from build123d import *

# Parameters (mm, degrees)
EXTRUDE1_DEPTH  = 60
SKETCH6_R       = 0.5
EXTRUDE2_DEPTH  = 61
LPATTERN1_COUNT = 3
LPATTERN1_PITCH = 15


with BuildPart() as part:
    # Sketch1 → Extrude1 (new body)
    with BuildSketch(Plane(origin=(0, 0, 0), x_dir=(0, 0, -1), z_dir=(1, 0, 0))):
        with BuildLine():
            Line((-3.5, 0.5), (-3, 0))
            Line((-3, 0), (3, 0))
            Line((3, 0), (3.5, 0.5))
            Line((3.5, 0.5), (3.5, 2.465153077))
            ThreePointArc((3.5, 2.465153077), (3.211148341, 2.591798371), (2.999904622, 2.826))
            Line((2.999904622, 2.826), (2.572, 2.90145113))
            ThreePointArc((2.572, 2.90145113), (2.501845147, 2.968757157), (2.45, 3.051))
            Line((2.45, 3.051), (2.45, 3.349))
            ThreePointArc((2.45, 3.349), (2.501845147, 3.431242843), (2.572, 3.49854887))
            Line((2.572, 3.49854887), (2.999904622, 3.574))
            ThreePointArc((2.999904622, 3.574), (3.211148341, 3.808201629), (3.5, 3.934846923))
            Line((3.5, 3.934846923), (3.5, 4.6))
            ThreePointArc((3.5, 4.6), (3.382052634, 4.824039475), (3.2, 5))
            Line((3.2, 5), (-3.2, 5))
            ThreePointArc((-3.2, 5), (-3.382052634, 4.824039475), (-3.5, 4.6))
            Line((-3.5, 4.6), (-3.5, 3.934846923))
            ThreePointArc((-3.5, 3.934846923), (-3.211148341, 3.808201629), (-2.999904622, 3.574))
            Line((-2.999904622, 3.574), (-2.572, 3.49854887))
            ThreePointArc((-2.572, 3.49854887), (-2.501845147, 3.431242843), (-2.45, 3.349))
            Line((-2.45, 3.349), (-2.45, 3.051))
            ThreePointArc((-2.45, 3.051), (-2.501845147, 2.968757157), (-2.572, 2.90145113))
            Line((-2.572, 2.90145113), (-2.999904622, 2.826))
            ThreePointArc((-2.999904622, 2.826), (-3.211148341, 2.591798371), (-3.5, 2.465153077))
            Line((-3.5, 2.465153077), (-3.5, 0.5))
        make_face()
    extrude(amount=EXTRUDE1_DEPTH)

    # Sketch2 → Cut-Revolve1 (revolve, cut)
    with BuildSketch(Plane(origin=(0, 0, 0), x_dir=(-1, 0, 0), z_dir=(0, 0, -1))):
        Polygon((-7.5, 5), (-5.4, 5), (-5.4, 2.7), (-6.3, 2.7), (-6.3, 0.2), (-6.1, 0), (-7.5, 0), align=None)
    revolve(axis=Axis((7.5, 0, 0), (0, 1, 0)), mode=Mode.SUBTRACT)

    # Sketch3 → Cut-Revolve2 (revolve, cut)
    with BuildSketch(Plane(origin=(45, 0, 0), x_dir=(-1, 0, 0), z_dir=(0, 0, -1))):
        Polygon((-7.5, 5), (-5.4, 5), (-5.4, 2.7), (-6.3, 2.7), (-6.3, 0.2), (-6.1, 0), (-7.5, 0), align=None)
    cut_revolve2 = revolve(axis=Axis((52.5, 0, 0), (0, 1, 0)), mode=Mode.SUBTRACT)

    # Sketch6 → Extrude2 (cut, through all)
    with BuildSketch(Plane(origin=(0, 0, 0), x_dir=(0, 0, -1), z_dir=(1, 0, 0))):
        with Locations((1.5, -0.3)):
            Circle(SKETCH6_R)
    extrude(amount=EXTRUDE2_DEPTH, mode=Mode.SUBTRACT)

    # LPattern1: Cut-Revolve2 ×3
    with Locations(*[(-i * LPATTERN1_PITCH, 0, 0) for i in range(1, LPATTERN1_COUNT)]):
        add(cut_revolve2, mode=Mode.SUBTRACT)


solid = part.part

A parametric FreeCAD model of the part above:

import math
import FreeCAD as App
import Part
import Sketcher
Q = App.Units.Quantity


def add_polygon(sketch, points):
    """Adds a closed chain of lines whose ends are joined by coincident constraints."""
    first, n = sketch.GeometryCount, len(points)
    for a, b in zip(points, points[1:] + points[:1]):
        sketch.addGeometry(Part.LineSegment(App.Vector(*a, 0), App.Vector(*b, 0)), False)
    for i in range(n):
        sketch.addConstraint(Sketcher.Constraint("Coincident", first + i, 2, first + (i + 1) % n, 1))

doc = App.newDocument("Part")
body = doc.addObject("PartDesign::Body", "Body")

# Sketch on YZ plane
sketch1 = body.newObject("Sketcher::SketchObject", "Sketch")
sketch1.AttachmentSupport = (doc.getObject("YZ_Plane"), [""])
sketch1.MapMode = "FlatFace"
sketch1.addGeometry([
    Part.LineSegment(App.Vector(0.5, 3.5, 0), App.Vector(0, 3, 0)),  # 0
    Part.LineSegment(App.Vector(0, 3, 0), App.Vector(0, -3, 0)),  # 1
    Part.LineSegment(App.Vector(0, -3, 0), App.Vector(0.5, -3.5, 0)),  # 2
    Part.LineSegment(App.Vector(0.5, -3.5, 0), App.Vector(2.47, -3.5, 0)),  # 3
    Part.ArcOfCircle(Part.Circle(App.Vector(3.2, -3.65, 0), App.Vector(0, 0, 1), 0.75), math.radians(120), math.radians(168)),  # 4
    Part.LineSegment(App.Vector(2.83, -3, 0), App.Vector(2.9, -2.57, 0)),  # 5
    Part.ArcOfCircle(Part.Circle(App.Vector(3.22, -2.81, 0), App.Vector(0, 0, 1), 0.4), math.radians(115), math.radians(143)),  # 6
    Part.LineSegment(App.Vector(3.05, -2.45, 0), App.Vector(3.35, -2.45, 0)),  # 7
    Part.ArcOfCircle(Part.Circle(App.Vector(3.18, -2.81, 0), App.Vector(0, 0, 1), 0.4), math.radians(37), math.radians(65)),  # 8
    Part.LineSegment(App.Vector(3.5, -2.57, 0), App.Vector(3.57, -3, 0)),  # 9
    Part.ArcOfCircle(Part.Circle(App.Vector(3.2, -3.65, 0), App.Vector(0, 0, 1), 0.75), math.radians(12), math.radians(60)),  # 10
    Part.LineSegment(App.Vector(3.93, -3.5, 0), App.Vector(4.6, -3.5, 0)),  # 11
    Part.ArcOfCircle(Part.Circle(App.Vector(4.34, -2.74, 0), App.Vector(0, 0, 1), 0.8), math.radians(-71), math.radians(-35)),  # 12
    Part.LineSegment(App.Vector(5, -3.2, 0), App.Vector(5, 3.2, 0)),  # 13
    Part.ArcOfCircle(Part.Circle(App.Vector(4.34, 2.74, 0), App.Vector(0, 0, 1), 0.8), math.radians(35), math.radians(71)),  # 14
    Part.LineSegment(App.Vector(4.6, 3.5, 0), App.Vector(3.93, 3.5, 0)),  # 15
    Part.ArcOfCircle(Part.Circle(App.Vector(3.2, 3.65, 0), App.Vector(0, 0, 1), 0.75), math.radians(-60), math.radians(-12)),  # 16
    Part.LineSegment(App.Vector(3.57, 3, 0), App.Vector(3.5, 2.57, 0)),  # 17
    Part.ArcOfCircle(Part.Circle(App.Vector(3.18, 2.81, 0), App.Vector(0, 0, 1), 0.4), math.radians(-65), math.radians(-37)),  # 18
    Part.LineSegment(App.Vector(3.35, 2.45, 0), App.Vector(3.05, 2.45, 0)),  # 19
    Part.ArcOfCircle(Part.Circle(App.Vector(3.22, 2.81, 0), App.Vector(0, 0, 1), 0.4), math.radians(-143), math.radians(-115)),  # 20
    Part.LineSegment(App.Vector(2.9, 2.57, 0), App.Vector(2.83, 3, 0)),  # 21
    Part.ArcOfCircle(Part.Circle(App.Vector(3.2, 3.65, 0), App.Vector(0, 0, 1), 0.75), math.radians(-168), math.radians(-120)),  # 22
    Part.LineSegment(App.Vector(2.47, 3.5, 0), App.Vector(0.5, 3.5, 0)),  # 23
], False)
sketch1.addConstraint([
    Sketcher.Constraint("Coincident", 0, 2, 1, 1),
    Sketcher.Constraint("Coincident", 1, 2, 2, 1),
    Sketcher.Constraint("Coincident", 2, 2, 3, 1),
    Sketcher.Constraint("Coincident", 3, 2, 4, 2),
    Sketcher.Constraint("Coincident", 4, 1, 5, 1),
    Sketcher.Constraint("Coincident", 5, 2, 6, 2),
    Sketcher.Constraint("Coincident", 6, 1, 7, 1),
    Sketcher.Constraint("Coincident", 7, 2, 8, 2),
    Sketcher.Constraint("Coincident", 8, 1, 9, 1),
    Sketcher.Constraint("Coincident", 9, 2, 10, 2),
    Sketcher.Constraint("Coincident", 10, 1, 11, 1),
    Sketcher.Constraint("Coincident", 11, 2, 12, 1),
    Sketcher.Constraint("Coincident", 12, 2, 13, 1),
    Sketcher.Constraint("Coincident", 13, 2, 14, 1),
    Sketcher.Constraint("Coincident", 14, 2, 15, 1),
    Sketcher.Constraint("Coincident", 15, 2, 16, 2),
    Sketcher.Constraint("Coincident", 16, 1, 17, 1),
    Sketcher.Constraint("Coincident", 17, 2, 18, 2),
    Sketcher.Constraint("Coincident", 18, 1, 19, 1),
    Sketcher.Constraint("Coincident", 19, 2, 20, 2),
    Sketcher.Constraint("Coincident", 20, 1, 21, 1),
    Sketcher.Constraint("Coincident", 21, 2, 22, 2),
    Sketcher.Constraint("Coincident", 22, 1, 23, 1),
    Sketcher.Constraint("Coincident", 23, 2, 0, 1),
    Sketcher.Constraint("Vertical", 1),
    Sketcher.Constraint("Horizontal", 3),
    Sketcher.Constraint("Horizontal", 7),
    Sketcher.Constraint("Horizontal", 11),
    Sketcher.Constraint("Vertical", 13),
    Sketcher.Constraint("Horizontal", 15),
    Sketcher.Constraint("Horizontal", 19),
    Sketcher.Constraint("Horizontal", 23),
    Sketcher.Constraint("Coincident", 10, 3, 4, 3),
    Sketcher.Constraint("Coincident", 22, 3, 16, 3),
    Sketcher.Constraint("Equal", 6, 8),
    Sketcher.Constraint("Equal", 4, 10),
    Sketcher.Constraint("Equal", 12, 14),
    Sketcher.Constraint("Equal", 10, 16),
    Sketcher.Constraint("Equal", 8, 18),
    Sketcher.Constraint("Equal", 18, 20),
    Sketcher.Constraint("Equal", 16, 22),
    Sketcher.Constraint("Symmetric", 0, 2, 1, 2, -1, 1),
    Sketcher.Constraint("Symmetric", 12, 3, 14, 3, -1),
    Sketcher.Constraint("Symmetric", 4, 3, 16, 3, -1),
    Sketcher.Constraint("Symmetric", 8, 3, 18, 3, -1),
    Sketcher.Constraint("Symmetric", 6, 3, 20, 3, -1),
    Sketcher.Constraint("Symmetric", 2, 2, 23, 2, -1),
    Sketcher.Constraint("Perpendicular", 0, 2),
    Sketcher.Constraint("Parallel", 5, 17),
    Sketcher.Constraint("Parallel", 9, 21),
    Sketcher.Constraint("Horizontal", 6, 3, 8, 3),
    Sketcher.Constraint("Horizontal", 5, 2, 8, 1),
    Sketcher.Constraint("Horizontal", 4, 1, 9, 2),
    Sketcher.Constraint("Horizontal", 3, 2, 10, 1),
    Sketcher.Constraint("Horizontal", 17, 2, 20, 1),
    Sketcher.Constraint("Horizontal", 16, 1, 21, 2),
    Sketcher.Constraint("Horizontal", 15, 2, 22, 1),
    Sketcher.Constraint("Vertical", 9, 2, 16, 1),
    Sketcher.Constraint("Vertical", 7, 2, 18, 1),
    Sketcher.Constraint("Radius", 6, Q("0.4 mm")),
    Sketcher.Constraint("Radius", 12, Q("0.8 mm")),
    Sketcher.Constraint("DistanceY", 1, 2, 1, 1, Q("6 mm")),
    Sketcher.Constraint("Angle", 5, Q("80 deg")),
    Sketcher.Constraint("Radius", 4, Q("0.75 mm")),
    Sketcher.Constraint("DistanceY", 13, 1, 13, 2, Q("6.4 mm")),
    Sketcher.Constraint("DistanceX", -1, 1, 12, 2, Q("5 mm")),
    Sketcher.Constraint("DistanceX", -1, 1, 4, 3, Q("3.2 mm")),
    Sketcher.Constraint("DistanceX", -1, 1, 2, 2, Q("0.5 mm")),
    Sketcher.Constraint("DistanceX", -1, 1, 11, 2, Q("4.6 mm")),
    Sketcher.Constraint("DistanceY", 4, 3, 16, 3, Q("7.3 mm")),
    Sketcher.Constraint("DistanceX", 7, 1, 7, 2, Q("0.298 mm")),
    Sketcher.Constraint("DistanceY", 6, 1, -1, 1, Q("2.45 mm")),
    Sketcher.Constraint("DistanceX", -1, 1, 4, 1, Q("2.826 mm")),
    Sketcher.Constraint("DistanceY", 5, 2, -1, 1, Q("2.572 mm")),
])
pad1 = body.newObject("PartDesign::Pad", "Pad")
pad1.Profile = sketch1
pad1.Length = 60

# Sketch on XY plane
sketch2 = body.newObject("Sketcher::SketchObject", "Sketch001")
sketch2.AttachmentSupport = (doc.getObject("XY_Plane"), [""])
sketch2.MapMode = "FlatFace"
add_polygon(sketch2, [(5.4, 5), (7.5, 5), (7.5, 0), (6.1, 0), (6.3, 0.2), (6.3, 2.7), (5.4, 2.7)])  # lines 0-6
sketch2.addGeometry(Part.LineSegment(App.Vector(7.5, 0, 0), App.Vector(7.5, 5, 0)), True)  # axis
sketch2.addConstraint([
    Sketcher.Constraint("Horizontal", 0),
    Sketcher.Constraint("Vertical", 1),
    Sketcher.Constraint("Horizontal", 2),
    Sketcher.Constraint("Vertical", 4),
    Sketcher.Constraint("Horizontal", 5),
    Sketcher.Constraint("Vertical", 6),
    Sketcher.Constraint("Vertical", 7),
    Sketcher.Constraint("Coincident", 7, 1, 1, 2),
    Sketcher.Constraint("PointOnObject", 1, 2, -1),
    Sketcher.Constraint("Horizontal", 6, 2, 7, 2),
    Sketcher.Constraint("DistanceY", 1, 2, 1, 1, Q("5 mm")),
    Sketcher.Constraint("Angle", 3, Q("45 deg")),
    Sketcher.Constraint("DistanceX", 0, 1, 0, 2, Q("2.1 mm")),
    Sketcher.Constraint("DistanceX", 2, 2, 2, 1, Q("1.4 mm")),
    Sketcher.Constraint("DistanceX", 5, 2, 5, 1, Q("0.9 mm")),
    Sketcher.Constraint("DistanceY", 4, 1, 4, 2, Q("2.5 mm")),
    Sketcher.Constraint("DistanceX", -1, 1, 0, 2, Q("7.5 mm")),
])
groove = body.newObject("PartDesign::Groove", "Groove")
groove.Profile = sketch2
groove.ReferenceAxis = (sketch2, ["Axis0"])
groove.Angle = 360

# Sketch on XY plane
sketch3 = body.newObject("Sketcher::SketchObject", "Sketch002")
sketch3.AttachmentSupport = (doc.getObject("XY_Plane"), [""])
sketch3.MapMode = "FlatFace"
add_polygon(sketch3, [(50.4, 5), (52.5, 5), (52.5, 0), (51.1, 0), (51.3, 0.2), (51.3, 2.7), (50.4, 2.7)])  # lines 0-6
sketch3.addGeometry(Part.LineSegment(App.Vector(52.5, 0, 0), App.Vector(52.5, 5, 0)), True)  # axis
sketch3.addConstraint([
    Sketcher.Constraint("Horizontal", 0),
    Sketcher.Constraint("Vertical", 1),
    Sketcher.Constraint("Horizontal", 2),
    Sketcher.Constraint("Vertical", 4),
    Sketcher.Constraint("Horizontal", 5),
    Sketcher.Constraint("Vertical", 6),
    Sketcher.Constraint("Vertical", 7),
    Sketcher.Constraint("Coincident", 7, 1, 1, 2),
    Sketcher.Constraint("PointOnObject", 1, 2, -1),
    Sketcher.Constraint("Horizontal", 6, 2, 7, 2),
    Sketcher.Constraint("DistanceY", 1, 2, 1, 1, Q("5 mm")),
    Sketcher.Constraint("Angle", 3, Q("45 deg")),
    Sketcher.Constraint("DistanceX", 0, 1, 0, 2, Q("2.1 mm")),
    Sketcher.Constraint("DistanceX", 2, 2, 2, 1, Q("1.4 mm")),
    Sketcher.Constraint("DistanceX", 5, 2, 5, 1, Q("0.9 mm")),
    Sketcher.Constraint("DistanceY", 4, 1, 4, 2, Q("2.5 mm")),
    Sketcher.Constraint("DistanceX", -1, 1, 0, 2, Q("52.5 mm")),
])
groove2 = body.newObject("PartDesign::Groove", "Groove001")
groove2.Profile = sketch3
groove2.ReferenceAxis = (sketch3, ["Axis0"])
groove2.Angle = 360

# Sketch on YZ plane
sketch4 = body.newObject("Sketcher::SketchObject", "Sketch003")
sketch4.AttachmentSupport = (doc.getObject("YZ_Plane"), [""])
sketch4.MapMode = "FlatFace"
sketch4.addGeometry(Part.Circle(App.Vector(-0.3, -1.5, 0), App.Vector(0, 0, 1), 0.5), False)
sketch4.addConstraint([
    Sketcher.Constraint("Diameter", 0, Q("1 mm")),
    Sketcher.Constraint("DistanceX", 0, 3, -1, 1, Q("0.3 mm")),
    Sketcher.Constraint("DistanceY", 0, 3, -1, 1, Q("1.5 mm")),
])
pocket1 = body.newObject("PartDesign::Pocket", "Pocket")
pocket1.Profile = sketch4
pocket1.Type = "ThroughAll"
pocket1.Reversed = True
doc.recompute()

linearpattern = body.newObject("PartDesign::LinearPattern", "LinearPattern")
linearpattern.Originals = [groove2]
linearpattern.Direction = (doc.getObject("X_Axis"), [""])
linearpattern.Mode = "offset"
linearpattern.Offset = 15
linearpattern.Occurrences = 3
linearpattern.Reversed = True
body.Tip = linearpattern

doc.recompute()
